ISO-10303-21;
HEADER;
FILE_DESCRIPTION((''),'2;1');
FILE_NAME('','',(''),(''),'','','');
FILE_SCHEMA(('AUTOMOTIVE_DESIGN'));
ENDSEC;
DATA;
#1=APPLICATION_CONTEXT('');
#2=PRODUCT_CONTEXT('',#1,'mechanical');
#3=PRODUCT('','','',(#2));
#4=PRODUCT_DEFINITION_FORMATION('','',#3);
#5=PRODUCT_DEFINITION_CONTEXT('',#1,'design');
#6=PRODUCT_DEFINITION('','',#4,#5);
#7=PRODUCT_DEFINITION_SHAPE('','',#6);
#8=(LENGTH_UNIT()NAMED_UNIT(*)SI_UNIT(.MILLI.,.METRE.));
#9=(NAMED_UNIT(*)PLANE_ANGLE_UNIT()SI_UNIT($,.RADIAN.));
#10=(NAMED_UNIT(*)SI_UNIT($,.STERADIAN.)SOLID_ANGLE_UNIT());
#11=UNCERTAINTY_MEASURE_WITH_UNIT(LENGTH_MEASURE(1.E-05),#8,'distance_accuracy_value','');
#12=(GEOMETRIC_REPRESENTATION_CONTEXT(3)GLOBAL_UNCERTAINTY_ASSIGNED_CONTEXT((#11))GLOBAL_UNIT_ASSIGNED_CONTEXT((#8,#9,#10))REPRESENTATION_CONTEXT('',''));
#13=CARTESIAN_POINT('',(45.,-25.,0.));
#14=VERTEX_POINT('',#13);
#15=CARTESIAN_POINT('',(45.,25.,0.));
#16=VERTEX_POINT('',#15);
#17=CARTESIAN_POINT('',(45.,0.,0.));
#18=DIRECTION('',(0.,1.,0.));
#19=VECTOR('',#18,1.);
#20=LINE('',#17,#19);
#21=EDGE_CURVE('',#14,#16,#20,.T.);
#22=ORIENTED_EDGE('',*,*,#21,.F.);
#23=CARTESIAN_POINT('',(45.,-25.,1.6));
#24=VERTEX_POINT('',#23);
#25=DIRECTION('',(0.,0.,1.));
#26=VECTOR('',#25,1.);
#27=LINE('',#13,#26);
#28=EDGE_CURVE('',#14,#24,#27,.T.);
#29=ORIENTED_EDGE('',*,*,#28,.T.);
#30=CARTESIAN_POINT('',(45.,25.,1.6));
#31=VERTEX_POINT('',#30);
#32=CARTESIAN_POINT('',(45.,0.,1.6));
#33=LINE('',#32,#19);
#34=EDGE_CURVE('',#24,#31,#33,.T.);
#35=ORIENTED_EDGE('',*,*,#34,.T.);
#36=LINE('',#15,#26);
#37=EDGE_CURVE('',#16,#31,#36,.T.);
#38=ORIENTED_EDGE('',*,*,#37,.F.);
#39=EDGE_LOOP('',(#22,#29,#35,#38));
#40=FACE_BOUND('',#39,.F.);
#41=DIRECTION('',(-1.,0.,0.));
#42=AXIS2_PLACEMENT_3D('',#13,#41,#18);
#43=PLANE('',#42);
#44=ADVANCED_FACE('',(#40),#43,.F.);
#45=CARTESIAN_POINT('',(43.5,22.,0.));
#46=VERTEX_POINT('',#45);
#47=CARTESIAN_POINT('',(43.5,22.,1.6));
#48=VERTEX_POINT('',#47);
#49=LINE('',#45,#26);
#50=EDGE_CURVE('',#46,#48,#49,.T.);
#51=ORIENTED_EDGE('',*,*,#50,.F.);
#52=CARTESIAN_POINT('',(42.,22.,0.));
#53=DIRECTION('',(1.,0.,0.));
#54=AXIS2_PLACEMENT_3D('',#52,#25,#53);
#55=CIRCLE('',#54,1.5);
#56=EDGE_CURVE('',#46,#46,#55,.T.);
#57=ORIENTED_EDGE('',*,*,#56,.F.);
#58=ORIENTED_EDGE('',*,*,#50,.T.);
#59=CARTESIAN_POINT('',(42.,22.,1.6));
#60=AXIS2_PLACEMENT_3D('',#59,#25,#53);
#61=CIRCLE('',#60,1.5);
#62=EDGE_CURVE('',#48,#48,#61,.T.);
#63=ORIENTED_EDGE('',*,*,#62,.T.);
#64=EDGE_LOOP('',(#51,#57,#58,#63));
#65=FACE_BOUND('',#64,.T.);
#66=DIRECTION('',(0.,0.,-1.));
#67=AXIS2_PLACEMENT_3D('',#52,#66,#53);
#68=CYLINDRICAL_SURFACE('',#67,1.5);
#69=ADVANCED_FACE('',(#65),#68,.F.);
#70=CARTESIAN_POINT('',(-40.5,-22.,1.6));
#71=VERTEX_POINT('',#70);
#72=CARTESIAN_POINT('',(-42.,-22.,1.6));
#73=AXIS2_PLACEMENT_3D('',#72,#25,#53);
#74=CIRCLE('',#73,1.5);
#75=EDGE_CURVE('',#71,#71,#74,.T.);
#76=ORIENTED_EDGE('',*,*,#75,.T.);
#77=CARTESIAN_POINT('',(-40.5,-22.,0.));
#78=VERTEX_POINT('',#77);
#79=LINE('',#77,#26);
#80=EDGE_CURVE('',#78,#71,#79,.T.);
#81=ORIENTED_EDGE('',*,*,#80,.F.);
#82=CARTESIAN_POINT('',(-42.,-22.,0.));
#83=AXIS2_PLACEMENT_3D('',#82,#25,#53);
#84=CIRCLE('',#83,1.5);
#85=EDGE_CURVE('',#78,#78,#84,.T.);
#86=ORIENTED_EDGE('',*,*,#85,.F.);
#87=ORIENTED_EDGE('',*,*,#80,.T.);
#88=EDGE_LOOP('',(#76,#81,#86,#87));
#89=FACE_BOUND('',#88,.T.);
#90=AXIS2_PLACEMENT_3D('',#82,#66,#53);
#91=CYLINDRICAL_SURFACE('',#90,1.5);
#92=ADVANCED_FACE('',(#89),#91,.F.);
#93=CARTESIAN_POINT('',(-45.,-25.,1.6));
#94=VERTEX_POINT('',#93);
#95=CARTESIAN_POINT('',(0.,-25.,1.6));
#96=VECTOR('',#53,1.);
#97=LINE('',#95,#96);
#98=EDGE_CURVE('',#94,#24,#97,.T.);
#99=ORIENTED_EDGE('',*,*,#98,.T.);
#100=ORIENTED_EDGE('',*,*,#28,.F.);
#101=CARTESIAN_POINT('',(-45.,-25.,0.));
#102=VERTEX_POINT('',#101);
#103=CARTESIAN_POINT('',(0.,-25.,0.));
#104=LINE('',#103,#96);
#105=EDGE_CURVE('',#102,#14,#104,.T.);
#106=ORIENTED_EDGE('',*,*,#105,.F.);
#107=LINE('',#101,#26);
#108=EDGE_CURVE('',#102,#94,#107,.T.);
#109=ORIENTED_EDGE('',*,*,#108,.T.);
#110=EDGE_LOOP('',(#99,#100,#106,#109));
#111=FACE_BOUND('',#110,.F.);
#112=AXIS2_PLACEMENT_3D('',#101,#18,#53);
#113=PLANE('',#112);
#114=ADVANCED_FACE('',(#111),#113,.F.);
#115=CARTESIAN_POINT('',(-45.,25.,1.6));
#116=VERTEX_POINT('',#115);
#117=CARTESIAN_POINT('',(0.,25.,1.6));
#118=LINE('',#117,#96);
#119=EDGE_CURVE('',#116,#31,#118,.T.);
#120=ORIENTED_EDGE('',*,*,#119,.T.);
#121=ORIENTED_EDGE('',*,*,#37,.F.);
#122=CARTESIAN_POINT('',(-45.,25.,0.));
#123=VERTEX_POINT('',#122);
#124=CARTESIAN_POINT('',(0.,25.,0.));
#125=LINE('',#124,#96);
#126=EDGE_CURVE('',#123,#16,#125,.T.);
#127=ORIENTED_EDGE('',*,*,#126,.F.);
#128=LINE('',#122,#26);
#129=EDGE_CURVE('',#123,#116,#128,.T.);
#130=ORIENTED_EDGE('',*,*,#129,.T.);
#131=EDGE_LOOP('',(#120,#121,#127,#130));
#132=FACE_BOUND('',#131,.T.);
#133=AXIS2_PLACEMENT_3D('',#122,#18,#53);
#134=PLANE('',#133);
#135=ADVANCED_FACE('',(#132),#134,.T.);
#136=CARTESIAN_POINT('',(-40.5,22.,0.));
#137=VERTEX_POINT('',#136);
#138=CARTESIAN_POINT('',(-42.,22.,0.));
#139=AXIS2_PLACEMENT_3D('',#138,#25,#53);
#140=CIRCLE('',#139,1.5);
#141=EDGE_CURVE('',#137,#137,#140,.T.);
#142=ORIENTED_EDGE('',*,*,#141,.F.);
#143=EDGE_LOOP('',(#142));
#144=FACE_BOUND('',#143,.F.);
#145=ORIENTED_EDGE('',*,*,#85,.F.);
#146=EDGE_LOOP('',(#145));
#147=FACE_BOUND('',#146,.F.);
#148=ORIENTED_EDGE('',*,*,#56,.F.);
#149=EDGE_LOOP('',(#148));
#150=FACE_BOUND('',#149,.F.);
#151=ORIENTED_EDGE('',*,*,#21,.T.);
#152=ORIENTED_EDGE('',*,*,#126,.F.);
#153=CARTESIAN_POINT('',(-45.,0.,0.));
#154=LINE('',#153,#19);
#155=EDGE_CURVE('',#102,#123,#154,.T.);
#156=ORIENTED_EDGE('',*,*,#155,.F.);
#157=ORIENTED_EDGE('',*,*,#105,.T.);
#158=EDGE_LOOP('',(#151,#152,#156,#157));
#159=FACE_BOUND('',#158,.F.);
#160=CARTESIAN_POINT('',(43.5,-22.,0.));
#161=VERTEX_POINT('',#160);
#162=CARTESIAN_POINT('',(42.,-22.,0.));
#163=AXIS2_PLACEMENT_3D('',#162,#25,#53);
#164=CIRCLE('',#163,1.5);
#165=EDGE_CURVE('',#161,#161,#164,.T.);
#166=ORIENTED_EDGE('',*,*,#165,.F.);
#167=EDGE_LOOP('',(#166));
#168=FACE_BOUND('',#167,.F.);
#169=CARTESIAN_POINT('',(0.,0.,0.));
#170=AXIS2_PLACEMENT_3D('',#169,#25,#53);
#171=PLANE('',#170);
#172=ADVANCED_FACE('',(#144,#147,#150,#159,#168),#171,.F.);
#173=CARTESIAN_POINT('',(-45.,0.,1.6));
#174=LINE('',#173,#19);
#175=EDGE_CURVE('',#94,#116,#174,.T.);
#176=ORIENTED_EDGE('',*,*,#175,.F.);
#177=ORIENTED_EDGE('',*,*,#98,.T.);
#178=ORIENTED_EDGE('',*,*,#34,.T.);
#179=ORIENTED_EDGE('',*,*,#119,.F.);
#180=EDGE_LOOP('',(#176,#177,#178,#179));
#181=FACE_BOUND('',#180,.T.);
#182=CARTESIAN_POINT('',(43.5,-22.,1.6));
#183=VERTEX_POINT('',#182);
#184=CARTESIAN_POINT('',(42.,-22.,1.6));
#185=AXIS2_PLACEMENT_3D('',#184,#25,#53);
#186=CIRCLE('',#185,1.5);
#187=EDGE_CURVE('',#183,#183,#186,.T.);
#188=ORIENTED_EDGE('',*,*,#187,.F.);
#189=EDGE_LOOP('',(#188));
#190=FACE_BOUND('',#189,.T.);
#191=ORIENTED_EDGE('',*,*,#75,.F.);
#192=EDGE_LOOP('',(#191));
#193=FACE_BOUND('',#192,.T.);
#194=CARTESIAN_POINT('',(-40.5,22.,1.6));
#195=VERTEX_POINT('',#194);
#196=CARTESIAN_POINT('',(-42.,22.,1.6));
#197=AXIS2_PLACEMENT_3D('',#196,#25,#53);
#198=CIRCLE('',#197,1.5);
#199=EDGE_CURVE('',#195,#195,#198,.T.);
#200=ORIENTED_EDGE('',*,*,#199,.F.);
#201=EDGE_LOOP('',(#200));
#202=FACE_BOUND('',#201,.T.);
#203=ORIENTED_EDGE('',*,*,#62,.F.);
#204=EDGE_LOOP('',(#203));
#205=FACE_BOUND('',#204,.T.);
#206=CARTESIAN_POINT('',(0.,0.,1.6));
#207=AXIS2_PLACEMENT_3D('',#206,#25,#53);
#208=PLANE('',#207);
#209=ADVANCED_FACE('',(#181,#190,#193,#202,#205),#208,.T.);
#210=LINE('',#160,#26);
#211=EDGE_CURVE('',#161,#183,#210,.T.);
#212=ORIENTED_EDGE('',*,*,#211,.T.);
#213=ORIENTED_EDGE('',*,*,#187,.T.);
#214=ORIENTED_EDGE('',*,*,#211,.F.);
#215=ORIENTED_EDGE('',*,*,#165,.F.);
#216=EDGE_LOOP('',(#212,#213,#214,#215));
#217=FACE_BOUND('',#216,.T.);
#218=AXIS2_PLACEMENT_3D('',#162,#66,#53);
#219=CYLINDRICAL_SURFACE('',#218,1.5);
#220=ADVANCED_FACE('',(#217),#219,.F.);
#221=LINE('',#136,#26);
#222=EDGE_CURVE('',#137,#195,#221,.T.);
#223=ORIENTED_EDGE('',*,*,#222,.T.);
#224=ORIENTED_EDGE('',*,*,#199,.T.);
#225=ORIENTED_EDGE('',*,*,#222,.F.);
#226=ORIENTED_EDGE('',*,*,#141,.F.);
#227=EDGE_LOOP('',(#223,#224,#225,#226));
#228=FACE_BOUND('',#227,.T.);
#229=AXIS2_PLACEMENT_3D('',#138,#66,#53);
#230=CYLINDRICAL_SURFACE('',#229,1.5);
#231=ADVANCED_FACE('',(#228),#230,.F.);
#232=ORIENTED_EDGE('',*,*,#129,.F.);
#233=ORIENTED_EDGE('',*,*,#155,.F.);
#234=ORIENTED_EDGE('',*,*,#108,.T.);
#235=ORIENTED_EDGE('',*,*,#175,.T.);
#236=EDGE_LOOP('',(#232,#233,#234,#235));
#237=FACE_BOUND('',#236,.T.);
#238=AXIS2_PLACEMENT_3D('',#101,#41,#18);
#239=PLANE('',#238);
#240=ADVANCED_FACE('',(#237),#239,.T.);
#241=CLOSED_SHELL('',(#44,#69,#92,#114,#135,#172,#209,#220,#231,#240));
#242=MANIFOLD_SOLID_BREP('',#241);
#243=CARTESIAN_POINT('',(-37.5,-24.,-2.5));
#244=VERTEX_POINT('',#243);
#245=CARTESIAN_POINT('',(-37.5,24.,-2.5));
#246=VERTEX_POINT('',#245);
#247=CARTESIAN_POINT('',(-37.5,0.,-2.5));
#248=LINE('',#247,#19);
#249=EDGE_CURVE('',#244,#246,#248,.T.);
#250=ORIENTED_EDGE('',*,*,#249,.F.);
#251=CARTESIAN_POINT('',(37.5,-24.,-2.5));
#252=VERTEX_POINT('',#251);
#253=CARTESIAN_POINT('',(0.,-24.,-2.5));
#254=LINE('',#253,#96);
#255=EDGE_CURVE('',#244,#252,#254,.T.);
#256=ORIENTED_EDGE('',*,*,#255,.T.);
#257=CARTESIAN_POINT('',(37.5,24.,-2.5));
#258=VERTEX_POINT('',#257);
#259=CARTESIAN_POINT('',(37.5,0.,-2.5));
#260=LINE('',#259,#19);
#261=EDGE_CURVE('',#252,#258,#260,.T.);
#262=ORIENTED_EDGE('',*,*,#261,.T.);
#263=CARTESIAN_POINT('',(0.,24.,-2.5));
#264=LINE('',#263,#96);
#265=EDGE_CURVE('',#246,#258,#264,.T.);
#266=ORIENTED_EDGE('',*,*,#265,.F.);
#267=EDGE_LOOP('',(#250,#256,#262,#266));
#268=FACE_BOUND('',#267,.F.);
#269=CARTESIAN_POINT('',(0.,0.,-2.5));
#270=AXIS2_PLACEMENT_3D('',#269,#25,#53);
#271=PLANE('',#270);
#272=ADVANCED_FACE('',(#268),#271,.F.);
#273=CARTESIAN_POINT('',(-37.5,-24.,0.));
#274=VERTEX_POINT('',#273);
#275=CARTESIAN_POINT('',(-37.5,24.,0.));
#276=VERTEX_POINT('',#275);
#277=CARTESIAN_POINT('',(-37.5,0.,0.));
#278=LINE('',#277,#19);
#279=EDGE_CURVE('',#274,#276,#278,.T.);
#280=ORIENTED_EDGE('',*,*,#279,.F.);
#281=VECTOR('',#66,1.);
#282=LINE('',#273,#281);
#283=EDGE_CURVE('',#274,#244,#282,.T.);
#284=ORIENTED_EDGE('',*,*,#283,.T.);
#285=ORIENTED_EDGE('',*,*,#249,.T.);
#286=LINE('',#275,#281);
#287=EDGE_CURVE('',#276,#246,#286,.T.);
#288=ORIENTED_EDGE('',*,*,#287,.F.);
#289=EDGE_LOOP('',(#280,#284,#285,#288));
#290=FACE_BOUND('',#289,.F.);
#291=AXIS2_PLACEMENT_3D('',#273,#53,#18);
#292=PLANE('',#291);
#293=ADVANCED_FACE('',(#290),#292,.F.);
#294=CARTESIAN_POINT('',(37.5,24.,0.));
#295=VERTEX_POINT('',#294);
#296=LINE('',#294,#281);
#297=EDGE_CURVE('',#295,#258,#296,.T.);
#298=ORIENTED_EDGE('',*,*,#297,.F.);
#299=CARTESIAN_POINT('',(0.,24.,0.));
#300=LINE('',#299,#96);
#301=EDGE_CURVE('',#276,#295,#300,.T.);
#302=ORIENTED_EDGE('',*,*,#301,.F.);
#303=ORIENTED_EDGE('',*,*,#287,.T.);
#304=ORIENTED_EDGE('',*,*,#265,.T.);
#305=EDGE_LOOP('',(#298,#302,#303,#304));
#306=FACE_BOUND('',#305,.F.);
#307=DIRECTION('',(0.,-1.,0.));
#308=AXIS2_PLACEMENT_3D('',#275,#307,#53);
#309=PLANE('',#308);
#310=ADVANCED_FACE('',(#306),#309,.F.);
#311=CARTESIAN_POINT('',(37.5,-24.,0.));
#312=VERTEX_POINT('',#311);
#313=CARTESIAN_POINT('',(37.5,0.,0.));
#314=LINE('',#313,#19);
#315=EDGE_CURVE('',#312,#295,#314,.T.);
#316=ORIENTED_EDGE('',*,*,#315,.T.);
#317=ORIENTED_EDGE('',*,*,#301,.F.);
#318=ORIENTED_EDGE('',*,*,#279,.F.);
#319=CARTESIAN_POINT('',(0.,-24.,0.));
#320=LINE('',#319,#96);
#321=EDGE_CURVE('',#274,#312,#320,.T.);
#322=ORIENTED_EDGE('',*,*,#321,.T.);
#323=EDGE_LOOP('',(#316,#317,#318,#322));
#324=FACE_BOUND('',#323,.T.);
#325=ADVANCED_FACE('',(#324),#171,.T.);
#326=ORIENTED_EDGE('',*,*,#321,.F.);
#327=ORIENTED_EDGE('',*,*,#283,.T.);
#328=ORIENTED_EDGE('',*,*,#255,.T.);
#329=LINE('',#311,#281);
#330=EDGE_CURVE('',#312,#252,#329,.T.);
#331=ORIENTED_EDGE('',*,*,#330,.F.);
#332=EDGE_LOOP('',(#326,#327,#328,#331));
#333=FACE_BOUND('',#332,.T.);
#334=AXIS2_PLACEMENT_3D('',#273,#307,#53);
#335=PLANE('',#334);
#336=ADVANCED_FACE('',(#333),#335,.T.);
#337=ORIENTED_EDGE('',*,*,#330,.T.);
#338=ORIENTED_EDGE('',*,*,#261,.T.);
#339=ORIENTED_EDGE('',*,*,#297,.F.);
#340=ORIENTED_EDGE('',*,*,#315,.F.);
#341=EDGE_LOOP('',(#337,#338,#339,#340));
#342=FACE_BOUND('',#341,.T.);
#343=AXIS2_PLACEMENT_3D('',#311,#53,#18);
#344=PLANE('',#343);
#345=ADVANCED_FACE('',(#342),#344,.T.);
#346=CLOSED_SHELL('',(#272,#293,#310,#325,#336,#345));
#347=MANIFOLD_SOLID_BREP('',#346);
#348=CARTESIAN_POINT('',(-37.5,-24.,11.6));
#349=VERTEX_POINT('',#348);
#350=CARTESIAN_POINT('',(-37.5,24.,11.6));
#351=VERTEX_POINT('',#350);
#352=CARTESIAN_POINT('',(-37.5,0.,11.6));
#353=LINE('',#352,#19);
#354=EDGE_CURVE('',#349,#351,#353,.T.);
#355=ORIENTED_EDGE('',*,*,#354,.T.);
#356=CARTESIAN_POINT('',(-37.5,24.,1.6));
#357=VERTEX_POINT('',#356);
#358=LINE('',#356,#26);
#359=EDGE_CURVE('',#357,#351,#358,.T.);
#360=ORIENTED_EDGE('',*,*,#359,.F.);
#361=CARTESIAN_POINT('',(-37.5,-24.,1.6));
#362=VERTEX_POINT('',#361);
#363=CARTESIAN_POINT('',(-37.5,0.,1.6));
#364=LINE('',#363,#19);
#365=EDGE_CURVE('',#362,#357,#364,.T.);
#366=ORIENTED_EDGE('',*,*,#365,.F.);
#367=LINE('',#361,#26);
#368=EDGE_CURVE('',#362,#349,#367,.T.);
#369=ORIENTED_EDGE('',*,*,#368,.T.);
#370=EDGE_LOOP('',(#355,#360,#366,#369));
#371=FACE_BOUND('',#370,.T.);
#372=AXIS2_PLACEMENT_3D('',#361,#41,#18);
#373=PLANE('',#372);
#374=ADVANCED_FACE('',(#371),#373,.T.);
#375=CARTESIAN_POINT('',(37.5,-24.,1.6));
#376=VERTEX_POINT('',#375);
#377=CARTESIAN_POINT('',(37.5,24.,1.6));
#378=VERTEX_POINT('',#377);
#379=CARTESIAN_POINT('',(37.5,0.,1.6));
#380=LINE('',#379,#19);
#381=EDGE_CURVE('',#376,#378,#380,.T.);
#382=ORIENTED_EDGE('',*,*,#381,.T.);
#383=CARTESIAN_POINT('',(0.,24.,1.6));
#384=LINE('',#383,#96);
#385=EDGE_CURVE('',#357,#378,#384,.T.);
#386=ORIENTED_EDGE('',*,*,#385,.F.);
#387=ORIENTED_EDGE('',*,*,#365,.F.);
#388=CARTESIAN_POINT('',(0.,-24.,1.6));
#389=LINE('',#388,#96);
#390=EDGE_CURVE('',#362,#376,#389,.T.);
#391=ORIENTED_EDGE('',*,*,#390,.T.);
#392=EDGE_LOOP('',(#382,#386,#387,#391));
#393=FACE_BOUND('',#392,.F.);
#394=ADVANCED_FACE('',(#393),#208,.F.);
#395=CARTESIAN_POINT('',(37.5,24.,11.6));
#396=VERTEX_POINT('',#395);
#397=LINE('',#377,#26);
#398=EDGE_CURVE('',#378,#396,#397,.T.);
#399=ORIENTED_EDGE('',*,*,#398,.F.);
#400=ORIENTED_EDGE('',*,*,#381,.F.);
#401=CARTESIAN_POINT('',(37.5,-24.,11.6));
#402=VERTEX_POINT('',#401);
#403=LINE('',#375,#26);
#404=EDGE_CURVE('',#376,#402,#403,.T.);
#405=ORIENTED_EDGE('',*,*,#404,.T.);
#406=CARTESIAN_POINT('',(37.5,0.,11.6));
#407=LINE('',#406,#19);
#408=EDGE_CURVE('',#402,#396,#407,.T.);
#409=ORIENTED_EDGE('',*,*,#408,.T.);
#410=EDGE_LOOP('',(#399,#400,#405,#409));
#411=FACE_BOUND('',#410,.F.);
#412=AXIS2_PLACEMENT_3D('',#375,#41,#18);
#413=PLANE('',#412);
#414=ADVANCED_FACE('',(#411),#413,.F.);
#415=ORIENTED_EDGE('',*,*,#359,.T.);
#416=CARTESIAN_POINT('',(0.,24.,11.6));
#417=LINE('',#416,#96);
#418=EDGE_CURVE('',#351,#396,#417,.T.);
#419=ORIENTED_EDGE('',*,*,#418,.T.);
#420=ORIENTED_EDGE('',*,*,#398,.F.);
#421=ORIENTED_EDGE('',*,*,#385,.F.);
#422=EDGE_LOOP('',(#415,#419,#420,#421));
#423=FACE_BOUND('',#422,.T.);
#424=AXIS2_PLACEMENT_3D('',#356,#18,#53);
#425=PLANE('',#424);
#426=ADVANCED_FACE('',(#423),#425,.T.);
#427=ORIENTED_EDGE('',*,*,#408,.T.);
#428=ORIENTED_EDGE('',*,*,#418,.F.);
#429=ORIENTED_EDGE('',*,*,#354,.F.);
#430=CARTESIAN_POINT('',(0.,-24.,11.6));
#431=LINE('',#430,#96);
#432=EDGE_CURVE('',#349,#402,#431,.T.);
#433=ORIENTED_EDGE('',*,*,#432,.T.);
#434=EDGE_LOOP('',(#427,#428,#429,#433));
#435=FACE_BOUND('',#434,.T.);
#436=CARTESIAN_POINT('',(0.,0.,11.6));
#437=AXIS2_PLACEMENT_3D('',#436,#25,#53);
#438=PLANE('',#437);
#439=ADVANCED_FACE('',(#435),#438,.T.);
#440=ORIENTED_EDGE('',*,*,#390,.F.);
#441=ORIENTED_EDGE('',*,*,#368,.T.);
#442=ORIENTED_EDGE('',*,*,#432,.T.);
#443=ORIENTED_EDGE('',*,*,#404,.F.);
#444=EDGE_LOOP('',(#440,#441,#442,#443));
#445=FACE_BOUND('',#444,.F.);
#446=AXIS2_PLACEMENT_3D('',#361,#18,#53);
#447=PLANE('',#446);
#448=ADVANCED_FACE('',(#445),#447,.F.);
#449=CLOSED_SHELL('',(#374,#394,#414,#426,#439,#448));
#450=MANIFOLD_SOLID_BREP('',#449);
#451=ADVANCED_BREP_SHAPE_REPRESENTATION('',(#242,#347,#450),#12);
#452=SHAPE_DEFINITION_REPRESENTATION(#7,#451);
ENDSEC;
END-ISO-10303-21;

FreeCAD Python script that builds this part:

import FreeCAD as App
import Part
import Sketcher
from FreeCAD import Vector
Q = App.Units.Quantity


def add_polygon(sketch, points):
    """Adds a closed chain of lines whose ends are joined by coincident constraints."""
    first, n = sketch.GeometryCount, len(points)
    for a, b in zip(points, points[1:] + points[:1]):
        sketch.addGeometry(Part.LineSegment(App.Vector(*a, 0), App.Vector(*b, 0)), False)
    for i in range(n):
        sketch.addConstraint(Sketcher.Constraint("Coincident", first + i, 2, first + (i + 1) % n, 1))

doc = App.newDocument("Part")
body = doc.addObject("PartDesign::Body", "Body")

# Sketch on XY plane
sketch1 = doc.addObject("Sketcher::SketchObject", "Sketch")
body.addObject(sketch1)
sketch1.AttachmentSupport = (doc.XY_Plane, [""])
sketch1.MapMode = "FlatFace"
add_polygon(sketch1, [(-45, 25), (-45, -25), (45, -25), (45, 25)])  # lines 0-3
sketch1.addGeometry(Part.Circle(Vector(-42, -22, 0), Vector(0, 0, 1), 1.5), False)  # 4
sketch1.addGeometry(Part.Circle(Vector(42, -22, 0), Vector(0, 0, 1), 1.5), False)  # 5
sketch1.addGeometry(Part.Circle(Vector(-42, 22, 0), Vector(0, 0, 1), 1.5), False)  # 6
sketch1.addGeometry(Part.Circle(Vector(42, 22, 0), Vector(0, 0, 1), 1.5), False)  # 7
sketch1.addConstraint([
    Sketcher.Constraint("Vertical", 0),
    Sketcher.Constraint("Horizontal", 1),
    Sketcher.Constraint("Vertical", 2),
    Sketcher.Constraint("Horizontal", 3),
    Sketcher.Constraint("Equal", 4, 5),
    Sketcher.Constraint("Equal", 5, 6),
    Sketcher.Constraint("Equal", 6, 7),
    Sketcher.Constraint("Symmetric", 5, 3, 6, 3, -1, 1),
    Sketcher.Constraint("Symmetric", 4, 3, 7, 3, -1, 1),
    Sketcher.Constraint("Symmetric", 0, 2, 2, 2, -1, 1),
    Sketcher.Constraint("Symmetric", 4, 3, 5, 3, -2),
    Sketcher.Constraint("Diameter", 4, Q("3 mm")),
    Sketcher.Constraint("DistanceX", 1, 1, 1, 2, Q("90 mm")),
    Sketcher.Constraint("DistanceY", 0, 2, 0, 1, Q("50 mm")),
    Sketcher.Constraint("DistanceX", 4, 3, -1, 1, Q("42 mm")),
    Sketcher.Constraint("DistanceY", 4, 3, -1, 1, Q("22 mm")),
])
pad1 = doc.addObject("PartDesign::Pad", "Pad")
body.addObject(pad1)
pad1.Profile = sketch1
pad1.Length = 1.6
body2 = doc.addObject("PartDesign::Body", "Body001")

# Sketch on XY plane
sketch2 = doc.addObject("Sketcher::SketchObject", "Sketch001")
body2.addObject(sketch2)
sketch2.AttachmentSupport = (doc.getObject("XY_Plane001"), [""])
sketch2.MapMode = "FlatFace"
sketch2.AttachmentOffset = App.Placement(Vector(0, 0, 1.6), App.Rotation())
add_polygon(sketch2, [(-38, 24), (-38, -24), (38, -24), (38, 24)])  # lines 0-3
sketch2.addConstraint([
    Sketcher.Constraint("Vertical", 0),
    Sketcher.Constraint("Horizontal", 1),
    Sketcher.Constraint("Vertical", 2),
    Sketcher.Constraint("Horizontal", 3),
    Sketcher.Constraint("Symmetric", 0, 2, 2, 2, -1, 1),
    Sketcher.Constraint("DistanceX", 1, 1, 1, 2, Q("75 mm")),
    Sketcher.Constraint("DistanceY", 0, 2, 0, 1, Q("48 mm")),
])
pad2 = doc.addObject("PartDesign::Pad", "Pad001")
body2.addObject(pad2)
pad2.Profile = sketch2
pad2.Length = 10
body3 = doc.addObject("PartDesign::Body", "Body002")

# Sketch on XY plane
sketch3 = doc.addObject("Sketcher::SketchObject", "Sketch002")
body3.addObject(sketch3)
sketch3.AttachmentSupport = (doc.getObject("XY_Plane002"), [""])
sketch3.MapMode = "FlatFace"
add_polygon(sketch3, [(-38, 24), (-38, -24), (38, -24), (38, 24)])  # lines 0-3
sketch3.addConstraint([
    Sketcher.Constraint("Vertical", 0),
    Sketcher.Constraint("Horizontal", 1),
    Sketcher.Constraint("Vertical", 2),
    Sketcher.Constraint("Horizontal", 3),
    Sketcher.Constraint("Symmetric", 0, 2, 2, 2, -1, 1),
    Sketcher.Constraint("DistanceX", 1, 1, 1, 2, Q("75 mm")),
    Sketcher.Constraint("DistanceY", 0, 2, 0, 1, Q("48 mm")),
])
pad3 = doc.addObject("PartDesign::Pad", "Pad002")
body3.addObject(pad3)
pad3.Profile = sketch3
pad3.Length = 2.5
pad3.Reversed = True

doc.recompute()
